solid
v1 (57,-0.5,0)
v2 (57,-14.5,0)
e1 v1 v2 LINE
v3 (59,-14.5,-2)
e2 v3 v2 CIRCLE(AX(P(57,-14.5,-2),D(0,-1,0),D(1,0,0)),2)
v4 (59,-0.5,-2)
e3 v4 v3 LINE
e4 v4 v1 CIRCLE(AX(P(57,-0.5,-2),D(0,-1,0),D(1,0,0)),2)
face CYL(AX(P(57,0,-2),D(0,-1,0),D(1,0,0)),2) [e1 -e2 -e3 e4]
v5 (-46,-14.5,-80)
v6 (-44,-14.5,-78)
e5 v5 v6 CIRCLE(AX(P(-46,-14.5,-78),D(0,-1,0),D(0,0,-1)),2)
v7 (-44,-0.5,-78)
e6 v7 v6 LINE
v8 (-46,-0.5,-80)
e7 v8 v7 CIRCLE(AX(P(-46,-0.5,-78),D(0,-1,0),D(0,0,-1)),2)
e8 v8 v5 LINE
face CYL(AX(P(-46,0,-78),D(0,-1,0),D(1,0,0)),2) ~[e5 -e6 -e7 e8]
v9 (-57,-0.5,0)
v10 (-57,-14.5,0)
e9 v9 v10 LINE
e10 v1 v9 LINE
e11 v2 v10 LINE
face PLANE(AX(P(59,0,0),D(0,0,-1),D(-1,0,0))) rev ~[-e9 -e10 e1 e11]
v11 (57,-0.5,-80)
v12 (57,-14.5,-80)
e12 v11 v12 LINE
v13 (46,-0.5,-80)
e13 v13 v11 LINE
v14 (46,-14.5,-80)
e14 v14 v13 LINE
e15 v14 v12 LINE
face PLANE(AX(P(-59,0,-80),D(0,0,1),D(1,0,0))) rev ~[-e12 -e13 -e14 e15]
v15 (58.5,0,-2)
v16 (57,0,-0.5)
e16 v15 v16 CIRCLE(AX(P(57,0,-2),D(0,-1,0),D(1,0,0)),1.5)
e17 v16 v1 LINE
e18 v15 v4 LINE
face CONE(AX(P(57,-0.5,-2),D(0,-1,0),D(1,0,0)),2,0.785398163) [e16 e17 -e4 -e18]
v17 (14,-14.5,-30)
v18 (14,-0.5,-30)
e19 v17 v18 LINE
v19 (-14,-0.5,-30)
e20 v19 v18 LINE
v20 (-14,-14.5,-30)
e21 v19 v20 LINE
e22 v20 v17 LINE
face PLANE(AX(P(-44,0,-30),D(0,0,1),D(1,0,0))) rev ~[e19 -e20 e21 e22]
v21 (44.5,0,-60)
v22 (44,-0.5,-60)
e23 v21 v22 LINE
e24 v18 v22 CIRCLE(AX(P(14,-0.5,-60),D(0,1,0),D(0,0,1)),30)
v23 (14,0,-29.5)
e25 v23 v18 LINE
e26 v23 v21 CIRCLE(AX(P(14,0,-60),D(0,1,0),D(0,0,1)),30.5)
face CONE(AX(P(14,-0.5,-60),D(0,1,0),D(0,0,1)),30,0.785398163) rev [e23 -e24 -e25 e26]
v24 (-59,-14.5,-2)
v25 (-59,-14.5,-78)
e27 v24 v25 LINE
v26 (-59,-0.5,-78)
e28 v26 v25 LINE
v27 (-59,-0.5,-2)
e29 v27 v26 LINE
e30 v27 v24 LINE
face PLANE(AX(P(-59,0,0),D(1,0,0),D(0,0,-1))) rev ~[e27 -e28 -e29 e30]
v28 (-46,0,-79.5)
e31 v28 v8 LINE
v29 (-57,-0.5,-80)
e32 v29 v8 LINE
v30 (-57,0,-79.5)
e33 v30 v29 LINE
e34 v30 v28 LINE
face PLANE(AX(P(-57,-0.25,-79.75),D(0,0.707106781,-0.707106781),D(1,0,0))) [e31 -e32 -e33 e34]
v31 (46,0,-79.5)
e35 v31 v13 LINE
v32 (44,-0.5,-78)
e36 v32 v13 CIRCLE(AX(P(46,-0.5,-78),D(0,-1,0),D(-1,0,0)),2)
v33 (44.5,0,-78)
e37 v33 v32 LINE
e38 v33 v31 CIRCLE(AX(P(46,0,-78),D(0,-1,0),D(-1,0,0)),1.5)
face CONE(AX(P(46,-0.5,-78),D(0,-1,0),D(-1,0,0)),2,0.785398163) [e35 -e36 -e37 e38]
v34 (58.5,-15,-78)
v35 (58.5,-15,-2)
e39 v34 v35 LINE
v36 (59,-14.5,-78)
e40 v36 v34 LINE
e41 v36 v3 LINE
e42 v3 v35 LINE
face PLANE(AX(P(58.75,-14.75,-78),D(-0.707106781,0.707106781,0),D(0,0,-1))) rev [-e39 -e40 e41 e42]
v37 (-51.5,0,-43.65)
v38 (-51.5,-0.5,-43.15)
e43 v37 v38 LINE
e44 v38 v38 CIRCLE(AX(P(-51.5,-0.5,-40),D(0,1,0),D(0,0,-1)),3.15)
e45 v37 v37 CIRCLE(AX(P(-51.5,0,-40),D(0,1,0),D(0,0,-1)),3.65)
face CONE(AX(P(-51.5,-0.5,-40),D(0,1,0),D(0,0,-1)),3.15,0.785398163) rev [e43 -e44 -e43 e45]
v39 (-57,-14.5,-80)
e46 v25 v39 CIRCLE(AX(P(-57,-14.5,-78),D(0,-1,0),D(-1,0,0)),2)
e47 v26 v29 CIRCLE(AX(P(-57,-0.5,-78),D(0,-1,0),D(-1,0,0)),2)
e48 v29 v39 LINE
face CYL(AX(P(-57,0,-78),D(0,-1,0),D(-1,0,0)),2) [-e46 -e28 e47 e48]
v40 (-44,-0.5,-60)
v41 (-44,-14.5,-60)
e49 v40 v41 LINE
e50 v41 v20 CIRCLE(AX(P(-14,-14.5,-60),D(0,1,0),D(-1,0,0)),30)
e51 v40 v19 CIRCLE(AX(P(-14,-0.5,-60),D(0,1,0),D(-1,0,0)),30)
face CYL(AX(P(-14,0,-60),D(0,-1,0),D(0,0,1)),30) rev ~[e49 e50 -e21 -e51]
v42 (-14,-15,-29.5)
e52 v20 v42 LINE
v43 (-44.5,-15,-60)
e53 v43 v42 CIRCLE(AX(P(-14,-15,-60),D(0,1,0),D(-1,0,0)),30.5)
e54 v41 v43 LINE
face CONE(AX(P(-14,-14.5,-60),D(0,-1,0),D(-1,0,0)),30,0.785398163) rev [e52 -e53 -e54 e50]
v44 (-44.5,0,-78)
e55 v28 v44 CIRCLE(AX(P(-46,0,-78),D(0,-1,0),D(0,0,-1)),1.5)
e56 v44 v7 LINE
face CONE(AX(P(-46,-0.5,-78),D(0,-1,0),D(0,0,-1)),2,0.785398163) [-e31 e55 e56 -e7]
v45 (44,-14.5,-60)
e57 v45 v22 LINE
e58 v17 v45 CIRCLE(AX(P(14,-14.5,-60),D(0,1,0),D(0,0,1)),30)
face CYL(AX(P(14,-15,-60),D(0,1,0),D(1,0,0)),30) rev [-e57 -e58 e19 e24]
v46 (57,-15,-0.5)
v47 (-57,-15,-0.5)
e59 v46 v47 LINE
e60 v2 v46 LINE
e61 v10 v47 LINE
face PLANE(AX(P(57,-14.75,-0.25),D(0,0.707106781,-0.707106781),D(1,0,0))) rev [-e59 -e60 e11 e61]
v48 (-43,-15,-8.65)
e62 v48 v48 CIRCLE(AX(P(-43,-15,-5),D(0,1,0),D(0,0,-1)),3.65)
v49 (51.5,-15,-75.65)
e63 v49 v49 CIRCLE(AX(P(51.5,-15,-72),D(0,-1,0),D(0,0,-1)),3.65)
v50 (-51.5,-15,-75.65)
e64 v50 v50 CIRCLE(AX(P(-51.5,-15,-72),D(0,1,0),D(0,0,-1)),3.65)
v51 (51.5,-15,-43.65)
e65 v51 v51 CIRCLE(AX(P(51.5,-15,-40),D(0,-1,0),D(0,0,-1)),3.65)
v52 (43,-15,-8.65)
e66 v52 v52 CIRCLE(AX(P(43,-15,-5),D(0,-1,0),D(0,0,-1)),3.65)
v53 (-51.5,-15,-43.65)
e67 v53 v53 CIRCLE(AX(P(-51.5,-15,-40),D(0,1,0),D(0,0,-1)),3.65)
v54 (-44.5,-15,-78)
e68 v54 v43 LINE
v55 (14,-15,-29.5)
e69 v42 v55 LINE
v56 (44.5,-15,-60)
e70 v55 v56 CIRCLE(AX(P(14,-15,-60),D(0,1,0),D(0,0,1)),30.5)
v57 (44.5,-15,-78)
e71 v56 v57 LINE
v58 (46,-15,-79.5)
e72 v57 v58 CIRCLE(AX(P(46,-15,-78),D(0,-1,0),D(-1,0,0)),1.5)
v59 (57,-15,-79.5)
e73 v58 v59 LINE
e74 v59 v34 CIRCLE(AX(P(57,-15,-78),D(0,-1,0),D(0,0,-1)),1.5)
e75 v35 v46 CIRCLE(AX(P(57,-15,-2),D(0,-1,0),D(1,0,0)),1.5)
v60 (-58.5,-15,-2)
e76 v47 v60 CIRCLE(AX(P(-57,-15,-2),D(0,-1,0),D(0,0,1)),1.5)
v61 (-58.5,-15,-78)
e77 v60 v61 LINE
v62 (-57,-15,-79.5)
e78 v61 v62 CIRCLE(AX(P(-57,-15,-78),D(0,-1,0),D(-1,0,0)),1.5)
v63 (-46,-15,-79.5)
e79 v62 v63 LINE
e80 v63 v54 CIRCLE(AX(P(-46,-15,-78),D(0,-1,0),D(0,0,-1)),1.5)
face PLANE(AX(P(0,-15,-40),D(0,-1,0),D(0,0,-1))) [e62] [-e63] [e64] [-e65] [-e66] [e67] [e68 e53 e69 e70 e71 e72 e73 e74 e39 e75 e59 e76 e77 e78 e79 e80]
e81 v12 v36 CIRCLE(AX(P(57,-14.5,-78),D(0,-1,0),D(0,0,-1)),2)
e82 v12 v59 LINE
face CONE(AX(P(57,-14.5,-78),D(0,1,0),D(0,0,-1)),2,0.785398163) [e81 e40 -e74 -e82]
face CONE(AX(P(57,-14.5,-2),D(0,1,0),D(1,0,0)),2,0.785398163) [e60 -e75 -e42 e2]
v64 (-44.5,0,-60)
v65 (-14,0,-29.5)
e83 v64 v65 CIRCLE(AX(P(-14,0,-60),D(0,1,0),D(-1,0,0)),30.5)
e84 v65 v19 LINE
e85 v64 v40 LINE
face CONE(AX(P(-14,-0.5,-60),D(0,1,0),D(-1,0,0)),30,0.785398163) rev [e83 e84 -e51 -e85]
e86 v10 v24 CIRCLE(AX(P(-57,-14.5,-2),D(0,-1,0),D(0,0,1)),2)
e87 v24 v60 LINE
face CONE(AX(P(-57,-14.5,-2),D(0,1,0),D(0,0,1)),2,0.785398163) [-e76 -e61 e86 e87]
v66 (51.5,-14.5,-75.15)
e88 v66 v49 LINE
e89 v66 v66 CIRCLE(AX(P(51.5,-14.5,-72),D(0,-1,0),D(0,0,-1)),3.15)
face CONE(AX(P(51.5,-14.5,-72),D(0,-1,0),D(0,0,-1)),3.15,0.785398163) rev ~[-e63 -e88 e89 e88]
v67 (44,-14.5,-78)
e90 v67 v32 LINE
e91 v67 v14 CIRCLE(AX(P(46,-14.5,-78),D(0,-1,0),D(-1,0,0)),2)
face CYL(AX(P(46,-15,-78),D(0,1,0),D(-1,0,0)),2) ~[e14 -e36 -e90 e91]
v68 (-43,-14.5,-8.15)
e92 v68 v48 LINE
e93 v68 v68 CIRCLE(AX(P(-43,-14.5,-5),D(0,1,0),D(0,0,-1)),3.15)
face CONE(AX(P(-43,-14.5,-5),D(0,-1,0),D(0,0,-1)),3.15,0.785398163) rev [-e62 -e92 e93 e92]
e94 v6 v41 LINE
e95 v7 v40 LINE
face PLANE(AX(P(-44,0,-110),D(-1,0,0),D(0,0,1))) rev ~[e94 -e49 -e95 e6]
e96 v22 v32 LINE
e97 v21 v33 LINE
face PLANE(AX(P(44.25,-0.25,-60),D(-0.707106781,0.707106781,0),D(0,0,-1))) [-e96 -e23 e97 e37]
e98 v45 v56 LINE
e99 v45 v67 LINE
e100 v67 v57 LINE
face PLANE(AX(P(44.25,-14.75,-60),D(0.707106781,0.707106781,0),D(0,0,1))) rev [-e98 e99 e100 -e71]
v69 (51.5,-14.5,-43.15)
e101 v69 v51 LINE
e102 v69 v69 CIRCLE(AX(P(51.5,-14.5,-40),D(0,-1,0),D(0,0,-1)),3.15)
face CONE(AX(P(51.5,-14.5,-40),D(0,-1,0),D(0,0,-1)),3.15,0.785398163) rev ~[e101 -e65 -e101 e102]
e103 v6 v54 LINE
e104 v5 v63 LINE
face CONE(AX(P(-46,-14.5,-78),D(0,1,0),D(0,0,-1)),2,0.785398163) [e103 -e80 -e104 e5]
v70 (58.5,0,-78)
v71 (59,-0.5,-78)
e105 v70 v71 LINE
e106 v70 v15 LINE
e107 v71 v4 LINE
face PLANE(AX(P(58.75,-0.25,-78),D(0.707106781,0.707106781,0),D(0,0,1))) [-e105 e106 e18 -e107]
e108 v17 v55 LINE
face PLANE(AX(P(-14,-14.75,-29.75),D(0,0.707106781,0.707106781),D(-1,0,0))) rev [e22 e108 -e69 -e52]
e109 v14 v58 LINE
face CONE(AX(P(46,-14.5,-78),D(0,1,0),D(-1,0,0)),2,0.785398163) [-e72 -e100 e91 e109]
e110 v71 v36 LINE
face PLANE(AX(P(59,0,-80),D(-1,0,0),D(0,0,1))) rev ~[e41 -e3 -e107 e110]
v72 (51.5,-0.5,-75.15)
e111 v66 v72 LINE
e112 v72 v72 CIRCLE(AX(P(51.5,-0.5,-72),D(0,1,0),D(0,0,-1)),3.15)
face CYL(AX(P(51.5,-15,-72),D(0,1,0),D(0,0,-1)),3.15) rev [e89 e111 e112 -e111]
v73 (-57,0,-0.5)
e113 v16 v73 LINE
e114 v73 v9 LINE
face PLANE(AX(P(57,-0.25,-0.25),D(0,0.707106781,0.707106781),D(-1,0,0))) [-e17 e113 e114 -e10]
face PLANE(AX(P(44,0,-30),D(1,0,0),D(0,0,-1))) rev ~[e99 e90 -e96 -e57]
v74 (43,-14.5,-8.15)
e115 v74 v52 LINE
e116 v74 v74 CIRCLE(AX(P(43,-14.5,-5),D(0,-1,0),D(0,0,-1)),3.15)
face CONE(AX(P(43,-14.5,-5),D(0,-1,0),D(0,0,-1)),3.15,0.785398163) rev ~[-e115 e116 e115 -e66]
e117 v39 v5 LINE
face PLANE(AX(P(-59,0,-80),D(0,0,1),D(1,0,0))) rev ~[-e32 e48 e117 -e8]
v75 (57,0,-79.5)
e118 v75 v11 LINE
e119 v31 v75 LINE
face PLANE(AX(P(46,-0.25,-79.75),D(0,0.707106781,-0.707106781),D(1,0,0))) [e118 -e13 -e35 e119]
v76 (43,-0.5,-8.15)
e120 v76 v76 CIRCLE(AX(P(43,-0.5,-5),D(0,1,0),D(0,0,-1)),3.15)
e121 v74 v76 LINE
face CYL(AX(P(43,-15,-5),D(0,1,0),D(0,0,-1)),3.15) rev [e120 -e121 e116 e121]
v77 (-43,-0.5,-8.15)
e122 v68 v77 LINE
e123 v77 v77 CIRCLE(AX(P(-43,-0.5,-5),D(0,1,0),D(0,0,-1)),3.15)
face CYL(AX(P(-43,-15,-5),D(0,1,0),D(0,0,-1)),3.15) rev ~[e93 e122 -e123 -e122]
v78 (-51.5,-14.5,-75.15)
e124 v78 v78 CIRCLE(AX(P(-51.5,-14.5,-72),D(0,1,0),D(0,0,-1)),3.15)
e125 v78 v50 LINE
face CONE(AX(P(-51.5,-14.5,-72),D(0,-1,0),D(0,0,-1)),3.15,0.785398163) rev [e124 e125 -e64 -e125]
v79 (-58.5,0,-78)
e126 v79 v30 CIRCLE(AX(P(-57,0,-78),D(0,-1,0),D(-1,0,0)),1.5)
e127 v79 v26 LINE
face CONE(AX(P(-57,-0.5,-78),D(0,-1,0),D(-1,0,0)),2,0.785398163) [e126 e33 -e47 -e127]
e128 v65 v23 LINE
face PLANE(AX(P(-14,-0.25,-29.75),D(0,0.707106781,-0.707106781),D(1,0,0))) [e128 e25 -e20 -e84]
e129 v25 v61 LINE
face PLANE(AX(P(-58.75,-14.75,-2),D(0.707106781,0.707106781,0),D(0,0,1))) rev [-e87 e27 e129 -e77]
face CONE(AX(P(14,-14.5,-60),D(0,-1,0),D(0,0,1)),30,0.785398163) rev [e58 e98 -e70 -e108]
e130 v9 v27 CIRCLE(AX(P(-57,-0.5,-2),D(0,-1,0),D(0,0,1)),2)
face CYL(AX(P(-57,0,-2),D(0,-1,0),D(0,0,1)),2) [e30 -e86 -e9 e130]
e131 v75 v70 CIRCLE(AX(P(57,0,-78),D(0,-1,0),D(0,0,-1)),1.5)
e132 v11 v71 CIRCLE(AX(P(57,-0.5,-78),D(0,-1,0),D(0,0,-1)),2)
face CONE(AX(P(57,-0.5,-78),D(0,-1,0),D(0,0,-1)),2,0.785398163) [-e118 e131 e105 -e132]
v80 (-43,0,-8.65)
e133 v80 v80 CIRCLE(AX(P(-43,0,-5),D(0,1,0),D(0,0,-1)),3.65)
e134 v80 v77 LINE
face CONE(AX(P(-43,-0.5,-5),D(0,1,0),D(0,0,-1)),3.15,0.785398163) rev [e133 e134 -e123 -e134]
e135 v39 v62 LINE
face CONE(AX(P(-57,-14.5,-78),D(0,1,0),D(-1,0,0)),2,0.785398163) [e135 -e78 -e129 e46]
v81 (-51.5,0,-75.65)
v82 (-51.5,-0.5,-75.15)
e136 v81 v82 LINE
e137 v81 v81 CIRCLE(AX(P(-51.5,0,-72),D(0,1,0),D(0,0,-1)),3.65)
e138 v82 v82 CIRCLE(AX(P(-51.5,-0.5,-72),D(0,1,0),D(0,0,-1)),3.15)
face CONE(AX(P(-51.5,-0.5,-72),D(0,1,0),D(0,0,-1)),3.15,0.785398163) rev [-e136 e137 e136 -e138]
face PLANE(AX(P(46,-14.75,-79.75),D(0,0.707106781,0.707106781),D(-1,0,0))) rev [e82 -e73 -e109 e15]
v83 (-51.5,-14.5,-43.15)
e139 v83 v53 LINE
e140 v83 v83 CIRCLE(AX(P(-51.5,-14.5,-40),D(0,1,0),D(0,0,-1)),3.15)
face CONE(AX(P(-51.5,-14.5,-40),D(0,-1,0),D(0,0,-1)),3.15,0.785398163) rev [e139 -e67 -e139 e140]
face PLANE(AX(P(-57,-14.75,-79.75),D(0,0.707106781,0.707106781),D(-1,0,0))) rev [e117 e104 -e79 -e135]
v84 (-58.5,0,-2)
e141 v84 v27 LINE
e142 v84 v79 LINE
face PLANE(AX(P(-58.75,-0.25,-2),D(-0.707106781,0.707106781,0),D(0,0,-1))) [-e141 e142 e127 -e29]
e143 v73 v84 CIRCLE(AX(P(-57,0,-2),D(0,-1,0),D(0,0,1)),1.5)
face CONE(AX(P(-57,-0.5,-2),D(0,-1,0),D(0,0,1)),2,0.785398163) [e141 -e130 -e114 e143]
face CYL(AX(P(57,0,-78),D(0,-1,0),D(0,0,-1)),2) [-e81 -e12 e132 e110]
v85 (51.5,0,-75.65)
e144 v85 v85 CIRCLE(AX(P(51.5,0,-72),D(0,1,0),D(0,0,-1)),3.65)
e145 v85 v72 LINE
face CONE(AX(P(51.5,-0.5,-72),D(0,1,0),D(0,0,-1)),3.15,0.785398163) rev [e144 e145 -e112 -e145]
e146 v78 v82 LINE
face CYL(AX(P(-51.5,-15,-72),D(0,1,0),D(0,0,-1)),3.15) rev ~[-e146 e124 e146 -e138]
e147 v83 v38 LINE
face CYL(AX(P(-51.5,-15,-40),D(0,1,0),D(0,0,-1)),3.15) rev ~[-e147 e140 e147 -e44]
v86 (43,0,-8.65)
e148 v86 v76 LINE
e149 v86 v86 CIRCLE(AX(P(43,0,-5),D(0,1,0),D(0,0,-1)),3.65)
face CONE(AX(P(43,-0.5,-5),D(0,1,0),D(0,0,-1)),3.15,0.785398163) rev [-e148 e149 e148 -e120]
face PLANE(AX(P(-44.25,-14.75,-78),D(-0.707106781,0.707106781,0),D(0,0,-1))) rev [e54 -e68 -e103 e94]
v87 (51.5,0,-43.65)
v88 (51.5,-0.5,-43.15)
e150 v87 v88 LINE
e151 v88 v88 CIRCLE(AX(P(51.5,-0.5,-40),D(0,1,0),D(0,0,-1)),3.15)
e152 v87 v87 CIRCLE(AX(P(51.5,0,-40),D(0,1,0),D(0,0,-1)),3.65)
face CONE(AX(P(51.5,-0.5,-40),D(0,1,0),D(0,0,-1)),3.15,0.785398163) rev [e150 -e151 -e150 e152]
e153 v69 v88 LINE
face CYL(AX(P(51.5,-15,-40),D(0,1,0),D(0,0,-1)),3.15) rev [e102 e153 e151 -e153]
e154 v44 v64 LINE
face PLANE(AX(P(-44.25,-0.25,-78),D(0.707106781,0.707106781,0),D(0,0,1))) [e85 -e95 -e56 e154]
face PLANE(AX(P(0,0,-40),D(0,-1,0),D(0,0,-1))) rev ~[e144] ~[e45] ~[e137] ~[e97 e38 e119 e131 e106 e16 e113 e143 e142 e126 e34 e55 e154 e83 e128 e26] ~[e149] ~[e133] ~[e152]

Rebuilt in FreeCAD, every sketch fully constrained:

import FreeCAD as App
import Part
import Sketcher
from FreeCAD import Vector
Q = App.Units.Quantity


def edges_at(feature, points):
    """Names of the edges that pass closest to the given points."""
    edges = feature.Shape.Edges
    near = lambda p: min(range(len(edges)), key=lambda i: edges[i].distToShape(Part.Vertex(*p))[0])
    return sorted({f"Edge{near(p) + 1}" for p in points})


def add_polygon(sketch, points):
    """Adds a closed chain of lines whose ends are joined by coincident constraints."""
    first, n = sketch.GeometryCount, len(points)
    for a, b in zip(points, points[1:] + points[:1]):
        sketch.addGeometry(Part.LineSegment(App.Vector(*a, 0), App.Vector(*b, 0)), False)
    for i in range(n):
        sketch.addConstraint(Sketcher.Constraint("Coincident", first + i, 2, first + (i + 1) % n, 1))

doc = App.newDocument("Part")
body = doc.addObject("PartDesign::Body", "Body")

# Sketch on XZ plane
sketch1 = doc.addObject("Sketcher::SketchObject", "Sketch")
body.addObject(sketch1)
sketch1.AttachmentSupport = (doc.XZ_Plane, [""])
sketch1.MapMode = "FlatFace"
add_polygon(sketch1, [(59, -80), (59, 0), (-59, 0), (-59, -80)])  # lines 0-3
sketch1.addConstraint(Sketcher.Constraint("Vertical", 0))
sketch1.addConstraint(Sketcher.Constraint("Horizontal", 1))
sketch1.addConstraint(Sketcher.Constraint("Vertical", 2))
sketch1.addConstraint(Sketcher.Constraint("Horizontal", 3))
sketch1.addConstraint(Sketcher.Constraint("Symmetric", 0, 2, 1, 2, -1, 1))
sketch1.addConstraint(Sketcher.Constraint("DistanceX", 1, 2, 1, 1, Q("118 mm")))
sketch1.addConstraint(Sketcher.Constraint("DistanceY", 0, 1, 0, 2, Q("80 mm")))
pad1 = doc.addObject("PartDesign::Pad", "Pad")
body.addObject(pad1)
pad1.Profile = sketch1
pad1.Length = 15

# Sketch on XZ plane
sketch2 = doc.addObject("Sketcher::SketchObject", "Sketch001")
body.addObject(sketch2)
sketch2.AttachmentSupport = (doc.XZ_Plane, [""])
sketch2.MapMode = "FlatFace"
add_polygon(sketch2, [(44, -30), (-44, -30), (-44, -110), (44, -110)])  # lines 0-3
sketch2.addConstraint(Sketcher.Constraint("Horizontal", 0))
sketch2.addConstraint(Sketcher.Constraint("Vertical", 1))
sketch2.addConstraint(Sketcher.Constraint("Horizontal", 2))
sketch2.addConstraint(Sketcher.Constraint("Vertical", 3))
sketch2.addConstraint(Sketcher.Constraint("DistanceX", 0, 2, 0, 1, Q("88 mm")))
sketch2.addConstraint(Sketcher.Constraint("DistanceY", 1, 2, 1, 1, Q("80 mm")))
sketch2.addConstraint(Sketcher.Constraint("DistanceX", 0, 2, -1, 1, Q("44 mm")))
sketch2.addConstraint(Sketcher.Constraint("DistanceY", 0, 2, -1, 1, Q("30 mm")))
pocket1 = doc.addObject("PartDesign::Pocket", "Pocket")
body.addObject(pocket1)
pocket1.Profile = sketch2
pocket1.Length = 380
pocket1.Midplane = True
doc.recompute()

fillet = doc.addObject("PartDesign::Fillet", "Fillet")
body.addObject(fillet)
fillet.Base = (pocket1, edges_at(pocket1, [(-44, -7.5, -30), (44, -7.5, -30)]))
fillet.Radius = 30

# Sketch on XZ plane
sketch3 = doc.addObject("Sketcher::SketchObject", "Sketch002")
body.addObject(sketch3)
sketch3.AttachmentSupport = (doc.XZ_Plane, [""])
sketch3.MapMode = "FlatFace"
sketch3.AttachmentOffset = App.Placement(Vector(0, 0, 15), App.Rotation())
sketch3.addGeometry(Part.Circle(Vector(-51.5, -72, 0), Vector(0, 0, 1), 3.1), False)
sketch3.addConstraint(Sketcher.Constraint("Diameter", 0, Q("6.3 mm")))
sketch3.addConstraint(Sketcher.Constraint("DistanceY", 0, 3, -1, 1, Q("72 mm")))
sketch3.addConstraint(Sketcher.Constraint("DistanceX", 0, 3, -1, 1, Q("51.5 mm")))
doc.recompute()
hole = doc.addObject("PartDesign::Hole", "Hole")
body.addObject(hole)
hole.Profile = sketch3
hole.ThreadType = "None"
hole.Diameter = 6.3
hole.DepthType = "Dimension"
hole.Depth = 30
hole.DrillPoint = "Flat"

# Sketch on XZ plane
sketch4 = doc.addObject("Sketcher::SketchObject", "Sketch003")
body.addObject(sketch4)
sketch4.AttachmentSupport = (doc.XZ_Plane, [""])
sketch4.MapMode = "FlatFace"
sketch4.AttachmentOffset = App.Placement(Vector(0, 0, 15), App.Rotation())
sketch4.addGeometry(Part.Circle(Vector(-51.5, -40, 0), Vector(0, 0, 1), 3.1), False)
sketch4.addConstraint(Sketcher.Constraint("Diameter", 0, Q("6.3 mm")))
sketch4.addConstraint(Sketcher.Constraint("DistanceY", 0, 3, -1, 1, Q("40 mm")))
sketch4.addConstraint(Sketcher.Constraint("DistanceX", 0, 3, -1, 1, Q("51.5 mm")))
doc.recompute()
hole2 = doc.addObject("PartDesign::Hole", "Hole001")
body.addObject(hole2)
hole2.Profile = sketch4
hole2.ThreadType = "None"
hole2.Diameter = 6.3
hole2.DepthType = "Dimension"
hole2.Depth = 30
hole2.DrillPoint = "Flat"

# Sketch on XZ plane
sketch5 = doc.addObject("Sketcher::SketchObject", "Sketch004")
body.addObject(sketch5)
sketch5.AttachmentSupport = (doc.XZ_Plane, [""])
sketch5.MapMode = "FlatFace"
sketch5.AttachmentOffset = App.Placement(Vector(0, 0, 15), App.Rotation())
sketch5.addGeometry(Part.Circle(Vector(-43, -5, 0), Vector(0, 0, 1), 3.1), False)
sketch5.addConstraint(Sketcher.Constraint("Diameter", 0, Q("6.3 mm")))
sketch5.addConstraint(Sketcher.Constraint("DistanceX", 0, 3, -1, 1, Q("43 mm")))
sketch5.addConstraint(Sketcher.Constraint("DistanceY", 0, 3, -1, 1, Q("5 mm")))
doc.recompute()
hole3 = doc.addObject("PartDesign::Hole", "Hole002")
body.addObject(hole3)
hole3.Profile = sketch5
hole3.ThreadType = "None"
hole3.Diameter = 6.3
hole3.DepthType = "Dimension"
hole3.Depth = 30
hole3.DrillPoint = "Flat"
doc.recompute()

mirrored = doc.addObject("PartDesign::Mirrored", "Mirrored")
body.addObject(mirrored)
mirrored.Originals = [hole, hole2, hole3]
mirrored.MirrorPlane = (doc.YZ_Plane, [""])
body.Tip = mirrored
doc.recompute()

fillet2 = doc.addObject("PartDesign::Fillet", "Fillet001")
body.addObject(fillet2)
fillet2.Base = (mirrored, edges_at(mirrored, [
    (-59, -7.5, 0),
    (-59, -7.5, -80),
    (-44, -7.5, -80),
    (44, -7.5, -80),
    (59, -7.5, -80),
    (59, -7.5, 0),
]))
fillet2.Radius = 2
doc.recompute()

chamfer = doc.addObject("PartDesign::Chamfer", "Chamfer")
body.addObject(chamfer)
chamfer.Base = (fillet2, edges_at(fillet2, [
    (51.5, -15, -68.85),
    (51.5, -15, -36.85),
    (43, -15, -1.85),
    (-43, -15, -1.85),
    (-51.5, -15, -36.85),
    (-51.5, -15, -68.85),
    (59, -15, -40),
    (58.414, -15, -0.586),
    (0, -15, 0),
    (-58.414, -15, -0.586),
    (-59, -15, -40),
    (-58.414, -15, -79.414),
    (-51.5, -15, -80),
    (-44.586, -15, -79.414),
    (-44, -15, -69),
    (-35.213, -15, -38.787),
    (0, -15, -30),
    (35.213, -15, -38.787),
    (44, -15, -69),
    (44.586, -15, -79.414),
    (51.5, -15, -80),
    (58.414, -15, -79.414),
]))
chamfer.Size = 0.5
doc.recompute()

chamfer2 = doc.addObject("PartDesign::Chamfer", "Chamfer001")
body.addObject(chamfer2)
chamfer2.Base = (chamfer, edges_at(chamfer, [
    (51.5, 0, -68.85),
    (51.5, 0, -36.85),
    (43, 0, -1.85),
    (-43, 0, -1.85),
    (-51.5, 0, -36.85),
    (-51.5, 0, -68.85),
    (0, 0, 0),
    (58.414, 0, -0.586),
    (59, 0, -40),
    (58.414, 0, -79.414),
    (51.5, 0, -80),
    (44.586, 0, -79.414),
    (44, 0, -69),
    (35.213, 0, -38.787),
    (0, 0, -30),
    (-35.213, 0, -38.787),
    (-44, 0, -69),
    (-44.586, 0, -79.414),
    (-51.5, 0, -80),
    (-58.414, 0, -79.414),
    (-59, 0, -40),
    (-58.414, 0, -0.586),
]))
chamfer2.Size = 0.5

doc.recompute()
